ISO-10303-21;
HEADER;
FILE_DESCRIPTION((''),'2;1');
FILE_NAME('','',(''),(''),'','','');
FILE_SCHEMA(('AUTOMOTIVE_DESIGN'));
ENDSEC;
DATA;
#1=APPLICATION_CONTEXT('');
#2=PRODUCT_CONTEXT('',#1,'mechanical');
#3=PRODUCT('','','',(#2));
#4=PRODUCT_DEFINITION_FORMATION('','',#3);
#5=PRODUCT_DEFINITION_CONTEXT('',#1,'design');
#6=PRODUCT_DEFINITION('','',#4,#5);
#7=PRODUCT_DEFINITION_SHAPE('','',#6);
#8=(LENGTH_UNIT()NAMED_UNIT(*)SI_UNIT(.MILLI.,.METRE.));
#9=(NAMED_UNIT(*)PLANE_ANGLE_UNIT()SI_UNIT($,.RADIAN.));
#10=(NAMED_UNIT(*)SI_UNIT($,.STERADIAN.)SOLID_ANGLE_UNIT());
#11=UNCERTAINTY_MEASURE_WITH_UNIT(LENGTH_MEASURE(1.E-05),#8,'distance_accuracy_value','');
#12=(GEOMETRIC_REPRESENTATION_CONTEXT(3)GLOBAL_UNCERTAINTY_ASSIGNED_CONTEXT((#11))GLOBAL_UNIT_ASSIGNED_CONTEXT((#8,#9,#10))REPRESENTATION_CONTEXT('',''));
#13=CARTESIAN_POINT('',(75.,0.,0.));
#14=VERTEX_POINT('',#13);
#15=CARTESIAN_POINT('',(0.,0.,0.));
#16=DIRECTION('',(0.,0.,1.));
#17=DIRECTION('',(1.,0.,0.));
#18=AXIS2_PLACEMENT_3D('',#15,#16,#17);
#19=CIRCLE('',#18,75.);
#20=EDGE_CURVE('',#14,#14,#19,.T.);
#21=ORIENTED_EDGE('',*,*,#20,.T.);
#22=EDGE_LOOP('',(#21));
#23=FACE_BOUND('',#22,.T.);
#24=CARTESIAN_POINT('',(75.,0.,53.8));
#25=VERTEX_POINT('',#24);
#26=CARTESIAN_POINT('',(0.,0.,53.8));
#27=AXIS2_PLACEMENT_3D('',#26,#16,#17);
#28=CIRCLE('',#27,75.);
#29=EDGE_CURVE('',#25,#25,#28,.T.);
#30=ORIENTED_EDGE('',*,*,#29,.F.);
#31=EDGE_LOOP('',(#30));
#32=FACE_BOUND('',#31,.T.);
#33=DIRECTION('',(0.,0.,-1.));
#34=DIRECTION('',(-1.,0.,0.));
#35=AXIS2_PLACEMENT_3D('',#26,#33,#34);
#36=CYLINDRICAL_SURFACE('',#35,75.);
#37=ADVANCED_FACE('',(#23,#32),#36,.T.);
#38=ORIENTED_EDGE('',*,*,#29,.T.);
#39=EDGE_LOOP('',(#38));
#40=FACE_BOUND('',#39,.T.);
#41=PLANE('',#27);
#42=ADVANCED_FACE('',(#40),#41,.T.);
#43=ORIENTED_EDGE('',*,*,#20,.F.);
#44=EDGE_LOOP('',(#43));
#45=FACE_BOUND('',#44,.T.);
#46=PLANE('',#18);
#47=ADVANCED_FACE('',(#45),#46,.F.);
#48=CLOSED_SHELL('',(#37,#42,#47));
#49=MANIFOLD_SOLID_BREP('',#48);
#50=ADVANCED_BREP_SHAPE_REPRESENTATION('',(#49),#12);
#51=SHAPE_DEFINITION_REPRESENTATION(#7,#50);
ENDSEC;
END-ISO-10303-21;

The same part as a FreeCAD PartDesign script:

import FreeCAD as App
import Part
import Sketcher

V = App.Vector
Q = App.Units.Quantity

doc = App.newDocument("Part")
body = doc.addObject("PartDesign::Body", "Body")

# Sketch on XY plane
sketch1 = body.newObject("Sketcher::SketchObject", "Sketch")
sketch1.AttachmentSupport = (doc.getObject("XY_Plane"), [""])
sketch1.MapMode = "FlatFace"
sketch1.addGeometry(Part.Circle(V(0, 0, 0), V(0, 0, 1), 75), False)
sketch1.addConstraint([
    Sketcher.Constraint("Coincident", 0, 3, -1, 1),
    Sketcher.Constraint("Diameter", 0, Q("150 mm")),
])
pad1 = body.newObject("PartDesign::Pad", "Pad")
pad1.Profile = sketch1
pad1.Length = 53.8

doc.recompute()
